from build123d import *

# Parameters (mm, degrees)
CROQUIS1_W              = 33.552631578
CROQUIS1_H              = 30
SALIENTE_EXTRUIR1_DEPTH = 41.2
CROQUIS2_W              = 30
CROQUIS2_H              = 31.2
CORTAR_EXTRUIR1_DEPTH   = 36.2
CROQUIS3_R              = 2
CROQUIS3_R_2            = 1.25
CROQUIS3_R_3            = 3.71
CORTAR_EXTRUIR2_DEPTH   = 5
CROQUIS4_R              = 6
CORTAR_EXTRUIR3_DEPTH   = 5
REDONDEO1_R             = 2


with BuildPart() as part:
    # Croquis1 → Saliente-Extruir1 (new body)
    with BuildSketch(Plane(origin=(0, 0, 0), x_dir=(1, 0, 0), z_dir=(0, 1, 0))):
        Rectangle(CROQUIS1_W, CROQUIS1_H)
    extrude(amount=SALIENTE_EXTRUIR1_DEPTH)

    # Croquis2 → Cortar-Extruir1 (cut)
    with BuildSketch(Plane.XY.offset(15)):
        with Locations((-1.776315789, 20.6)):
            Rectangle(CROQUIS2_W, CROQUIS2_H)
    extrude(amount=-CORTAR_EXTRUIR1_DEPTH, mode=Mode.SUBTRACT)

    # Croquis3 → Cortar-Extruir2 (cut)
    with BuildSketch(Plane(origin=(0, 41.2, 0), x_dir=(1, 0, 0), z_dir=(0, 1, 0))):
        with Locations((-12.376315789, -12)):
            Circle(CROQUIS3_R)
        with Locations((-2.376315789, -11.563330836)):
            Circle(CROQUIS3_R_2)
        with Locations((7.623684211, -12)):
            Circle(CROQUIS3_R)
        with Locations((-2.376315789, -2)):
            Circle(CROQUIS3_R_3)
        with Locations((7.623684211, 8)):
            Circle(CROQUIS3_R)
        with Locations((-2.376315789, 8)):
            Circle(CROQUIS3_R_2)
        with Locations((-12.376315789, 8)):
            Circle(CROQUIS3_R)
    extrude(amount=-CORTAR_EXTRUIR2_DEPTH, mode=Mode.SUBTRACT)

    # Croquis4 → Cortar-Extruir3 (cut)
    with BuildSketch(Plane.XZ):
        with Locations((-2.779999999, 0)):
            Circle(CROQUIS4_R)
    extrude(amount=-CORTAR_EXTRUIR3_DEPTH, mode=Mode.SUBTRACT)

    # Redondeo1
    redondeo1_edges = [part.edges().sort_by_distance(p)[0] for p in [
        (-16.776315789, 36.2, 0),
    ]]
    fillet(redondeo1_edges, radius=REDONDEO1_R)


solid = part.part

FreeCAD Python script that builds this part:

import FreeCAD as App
import Part
import Sketcher
Q = App.Units.Quantity


def edges_at(feature, points):
    """Names of the edges that pass closest to the given points."""
    edges = feature.Shape.Edges
    near = lambda p: min(range(len(edges)), key=lambda i: edges[i].distToShape(Part.Vertex(*p))[0])
    return sorted({f"Edge{near(p) + 1}" for p in points})


def add_polygon(sketch, points):
    """Adds a closed chain of lines whose ends are joined by coincident constraints."""
    first, n = sketch.GeometryCount, len(points)
    for a, b in zip(points, points[1:] + points[:1]):
        sketch.addGeometry(Part.LineSegment(App.Vector(*a, 0), App.Vector(*b, 0)), False)
    for i in range(n):
        sketch.addConstraint(Sketcher.Constraint("Coincident", first + i, 2, first + (i + 1) % n, 1))

doc = App.newDocument("Part")
params = doc.addObject("Spreadsheet::Sheet", "Params")
for row, (alias, value) in enumerate([
    ("sketch1_height", "30 mm"),
    ("pad1_length", "41.2 mm"),
    ("sketch2_width", "30 mm"),
    ("sketch2_height", "31.2 mm"),
    ("pocket1_length", "36.2 mm"),
    ("sketch3_diameter", "4 mm"),
    ("sketch3_diameter2", "2.5 mm"),
    ("sketch3_diameter3", "7.42 mm"),
    ("pocket2_length", "5 mm"),
    ("sketch4_diameter", "12 mm"),
    ("pocket3_length", "5 mm"),
    ("fillet_radius", "2 mm"),
], start=1):
    params.set(f"A{row}", alias)
    params.set(f"B{row}", "=" + value)
    params.setAlias(f"B{row}", alias)

body = doc.addObject("PartDesign::Body", "Body")

# Sketch on XZ plane
sketch1 = body.newObject("Sketcher::SketchObject", "Sketch")
sketch1.AttachmentSupport = (doc.getObject("XZ_Plane"), [""])
sketch1.MapMode = "FlatFace"
add_polygon(sketch1, [(-17, -15), (-17, 15), (17, 15), (17, -15)])  # lines 0-3
sketch1.addConstraint([
    Sketcher.Constraint("Vertical", 0),
    Sketcher.Constraint("Horizontal", 1),
    Sketcher.Constraint("Vertical", 2),
    Sketcher.Constraint("Horizontal", 3),
    Sketcher.Constraint("Symmetric", 0, 2, 2, 2, -1, 1),
    Sketcher.Constraint("DistanceY", 0, 1, 0, 2, Q("30 mm")),
    Sketcher.Constraint("DistanceX", 1, 1, 1, 2, Q("33.552632 mm")),
])
sketch1.setExpression("Constraints[9]", "Params.sketch1_height")
pad1 = body.newObject("PartDesign::Pad", "Pad")
pad1.Profile = sketch1
pad1.setExpression("Length", "Params.pad1_length")
pad1.Reversed = True

# Sketch on XY plane
sketch2 = body.newObject("Sketcher::SketchObject", "Sketch001")
sketch2.AttachmentSupport = (doc.getObject("XY_Plane"), [""])
sketch2.MapMode = "FlatFace"
sketch2.AttachmentOffset = App.Placement(App.Vector(0, 0, 15), App.Rotation())
add_polygon(sketch2, [(-17, 36), (-17, 5), (13, 5), (13, 36)])  # lines 0-3
sketch2.addConstraint([
    Sketcher.Constraint("Vertical", 0),
    Sketcher.Constraint("Horizontal", 1),
    Sketcher.Constraint("Vertical", 2),
    Sketcher.Constraint("Horizontal", 3),
    Sketcher.Constraint("DistanceX", 1, 1, 1, 2, Q("30 mm")),
    Sketcher.Constraint("DistanceY", 0, 2, 0, 1, Q("31.2 mm")),
    Sketcher.Constraint("DistanceY", -1, 1, 0, 2, Q("5 mm")),
    Sketcher.Constraint("DistanceX", 0, 2, -1, 1, Q("16.776316 mm")),
])
sketch2.setExpression("Constraints[8]", "Params.sketch2_width")
sketch2.setExpression("Constraints[9]", "Params.sketch2_height")
pocket1 = body.newObject("PartDesign::Pocket", "Pocket")
pocket1.Profile = sketch2
pocket1.setExpression("Length", "Params.pocket1_length")

# Sketch on XZ plane
sketch3 = body.newObject("Sketcher::SketchObject", "Sketch002")
sketch3.AttachmentSupport = (doc.getObject("XZ_Plane"), [""])
sketch3.MapMode = "FlatFace"
sketch3.AttachmentOffset = App.Placement(App.Vector(0, 0, -41.2), App.Rotation())
sketch3.addGeometry([
    Part.Circle(App.Vector(-12.4, 12, 0), App.Vector(0, 0, 1), 2),  # 0
    Part.Circle(App.Vector(-2.4, 11.6, 0), App.Vector(0, 0, 1), 1.2),  # 1
    Part.Circle(App.Vector(7.6, 12, 0), App.Vector(0, 0, 1), 2),  # 2
    Part.Circle(App.Vector(-2.4, 2, 0), App.Vector(0, 0, 1), 3.7),  # 3
    Part.Circle(App.Vector(7.6, -8, 0), App.Vector(0, 0, 1), 2),  # 4
    Part.Circle(App.Vector(-2.4, -8, 0), App.Vector(0, 0, 1), 1.2),  # 5
    Part.Circle(App.Vector(-12.4, -8, 0), App.Vector(0, 0, 1), 2),  # 6
], False)
sketch3.addConstraint([
    Sketcher.Constraint("Equal", 0, 2),
    Sketcher.Constraint("Equal", 2, 4),
    Sketcher.Constraint("Equal", 1, 5),
    Sketcher.Constraint("Equal", 4, 6),
    Sketcher.Constraint("Horizontal", 0, 3, 2, 3),
    Sketcher.Constraint("Horizontal", 4, 3, 5, 3),
    Sketcher.Constraint("Horizontal", 5, 3, 6, 3),
    Sketcher.Constraint("Vertical", 1, 3, 3, 3),
    Sketcher.Constraint("Vertical", 2, 3, 4, 3),
    Sketcher.Constraint("Vertical", 3, 3, 5, 3),
    Sketcher.Constraint("Vertical", 0, 3, 6, 3),
    Sketcher.Constraint("Diameter", 0, Q("4 mm")),
    Sketcher.Constraint("Diameter", 1, Q("2.5 mm")),
    Sketcher.Constraint("Diameter", 3, Q("7.42 mm")),
    Sketcher.Constraint("DistanceY", -1, 1, 0, 3, Q("12 mm")),
    Sketcher.Constraint("DistanceY", -1, 1, 3, 3, Q("2 mm")),
    Sketcher.Constraint("DistanceY", 4, 3, -1, 1, Q("8 mm")),
    Sketcher.Constraint("DistanceX", 0, 3, 1, 3, Q("10 mm")),
    Sketcher.Constraint("DistanceX", 1, 3, 2, 3, Q("10 mm")),
    Sketcher.Constraint("DistanceY", -1, 1, 1, 3, Q("11.563331 mm")),
    Sketcher.Constraint("DistanceX", 0, 3, -1, 1, Q("12.376316 mm")),
])
sketch3.setExpression("Constraints[11]", "Params.sketch3_diameter")
sketch3.setExpression("Constraints[12]", "Params.sketch3_diameter2")
sketch3.setExpression("Constraints[13]", "Params.sketch3_diameter3")
pocket2 = body.newObject("PartDesign::Pocket", "Pocket001")
pocket2.Profile = sketch3
pocket2.setExpression("Length", "Params.pocket2_length")
pocket2.Reversed = True

# Sketch on XZ plane
sketch4 = body.newObject("Sketcher::SketchObject", "Sketch003")
sketch4.AttachmentSupport = (doc.getObject("XZ_Plane"), [""])
sketch4.MapMode = "FlatFace"
sketch4.addGeometry(Part.Circle(App.Vector(-3, 0, 0), App.Vector(0, 0, 1), 6), False)
sketch4.addConstraint([
    Sketcher.Constraint("PointOnObject", 0, 3, -1),
    Sketcher.Constraint("Diameter", 0, Q("12 mm")),
    Sketcher.Constraint("DistanceX", 0, 3, -1, 1, Q("2.78 mm")),
])
sketch4.setExpression("Constraints[1]", "Params.sketch4_diameter")
pocket3 = body.newObject("PartDesign::Pocket", "Pocket002")
pocket3.Profile = sketch4
pocket3.setExpression("Length", "Params.pocket3_length")
doc.recompute()

fillet = body.newObject("PartDesign::Fillet", "Fillet")
fillet.Base = (pocket3, edges_at(pocket3, [(-16.776, 36.2, 0)]))
fillet.setExpression("Radius", "Params.fillet_radius")

doc.recompute()
